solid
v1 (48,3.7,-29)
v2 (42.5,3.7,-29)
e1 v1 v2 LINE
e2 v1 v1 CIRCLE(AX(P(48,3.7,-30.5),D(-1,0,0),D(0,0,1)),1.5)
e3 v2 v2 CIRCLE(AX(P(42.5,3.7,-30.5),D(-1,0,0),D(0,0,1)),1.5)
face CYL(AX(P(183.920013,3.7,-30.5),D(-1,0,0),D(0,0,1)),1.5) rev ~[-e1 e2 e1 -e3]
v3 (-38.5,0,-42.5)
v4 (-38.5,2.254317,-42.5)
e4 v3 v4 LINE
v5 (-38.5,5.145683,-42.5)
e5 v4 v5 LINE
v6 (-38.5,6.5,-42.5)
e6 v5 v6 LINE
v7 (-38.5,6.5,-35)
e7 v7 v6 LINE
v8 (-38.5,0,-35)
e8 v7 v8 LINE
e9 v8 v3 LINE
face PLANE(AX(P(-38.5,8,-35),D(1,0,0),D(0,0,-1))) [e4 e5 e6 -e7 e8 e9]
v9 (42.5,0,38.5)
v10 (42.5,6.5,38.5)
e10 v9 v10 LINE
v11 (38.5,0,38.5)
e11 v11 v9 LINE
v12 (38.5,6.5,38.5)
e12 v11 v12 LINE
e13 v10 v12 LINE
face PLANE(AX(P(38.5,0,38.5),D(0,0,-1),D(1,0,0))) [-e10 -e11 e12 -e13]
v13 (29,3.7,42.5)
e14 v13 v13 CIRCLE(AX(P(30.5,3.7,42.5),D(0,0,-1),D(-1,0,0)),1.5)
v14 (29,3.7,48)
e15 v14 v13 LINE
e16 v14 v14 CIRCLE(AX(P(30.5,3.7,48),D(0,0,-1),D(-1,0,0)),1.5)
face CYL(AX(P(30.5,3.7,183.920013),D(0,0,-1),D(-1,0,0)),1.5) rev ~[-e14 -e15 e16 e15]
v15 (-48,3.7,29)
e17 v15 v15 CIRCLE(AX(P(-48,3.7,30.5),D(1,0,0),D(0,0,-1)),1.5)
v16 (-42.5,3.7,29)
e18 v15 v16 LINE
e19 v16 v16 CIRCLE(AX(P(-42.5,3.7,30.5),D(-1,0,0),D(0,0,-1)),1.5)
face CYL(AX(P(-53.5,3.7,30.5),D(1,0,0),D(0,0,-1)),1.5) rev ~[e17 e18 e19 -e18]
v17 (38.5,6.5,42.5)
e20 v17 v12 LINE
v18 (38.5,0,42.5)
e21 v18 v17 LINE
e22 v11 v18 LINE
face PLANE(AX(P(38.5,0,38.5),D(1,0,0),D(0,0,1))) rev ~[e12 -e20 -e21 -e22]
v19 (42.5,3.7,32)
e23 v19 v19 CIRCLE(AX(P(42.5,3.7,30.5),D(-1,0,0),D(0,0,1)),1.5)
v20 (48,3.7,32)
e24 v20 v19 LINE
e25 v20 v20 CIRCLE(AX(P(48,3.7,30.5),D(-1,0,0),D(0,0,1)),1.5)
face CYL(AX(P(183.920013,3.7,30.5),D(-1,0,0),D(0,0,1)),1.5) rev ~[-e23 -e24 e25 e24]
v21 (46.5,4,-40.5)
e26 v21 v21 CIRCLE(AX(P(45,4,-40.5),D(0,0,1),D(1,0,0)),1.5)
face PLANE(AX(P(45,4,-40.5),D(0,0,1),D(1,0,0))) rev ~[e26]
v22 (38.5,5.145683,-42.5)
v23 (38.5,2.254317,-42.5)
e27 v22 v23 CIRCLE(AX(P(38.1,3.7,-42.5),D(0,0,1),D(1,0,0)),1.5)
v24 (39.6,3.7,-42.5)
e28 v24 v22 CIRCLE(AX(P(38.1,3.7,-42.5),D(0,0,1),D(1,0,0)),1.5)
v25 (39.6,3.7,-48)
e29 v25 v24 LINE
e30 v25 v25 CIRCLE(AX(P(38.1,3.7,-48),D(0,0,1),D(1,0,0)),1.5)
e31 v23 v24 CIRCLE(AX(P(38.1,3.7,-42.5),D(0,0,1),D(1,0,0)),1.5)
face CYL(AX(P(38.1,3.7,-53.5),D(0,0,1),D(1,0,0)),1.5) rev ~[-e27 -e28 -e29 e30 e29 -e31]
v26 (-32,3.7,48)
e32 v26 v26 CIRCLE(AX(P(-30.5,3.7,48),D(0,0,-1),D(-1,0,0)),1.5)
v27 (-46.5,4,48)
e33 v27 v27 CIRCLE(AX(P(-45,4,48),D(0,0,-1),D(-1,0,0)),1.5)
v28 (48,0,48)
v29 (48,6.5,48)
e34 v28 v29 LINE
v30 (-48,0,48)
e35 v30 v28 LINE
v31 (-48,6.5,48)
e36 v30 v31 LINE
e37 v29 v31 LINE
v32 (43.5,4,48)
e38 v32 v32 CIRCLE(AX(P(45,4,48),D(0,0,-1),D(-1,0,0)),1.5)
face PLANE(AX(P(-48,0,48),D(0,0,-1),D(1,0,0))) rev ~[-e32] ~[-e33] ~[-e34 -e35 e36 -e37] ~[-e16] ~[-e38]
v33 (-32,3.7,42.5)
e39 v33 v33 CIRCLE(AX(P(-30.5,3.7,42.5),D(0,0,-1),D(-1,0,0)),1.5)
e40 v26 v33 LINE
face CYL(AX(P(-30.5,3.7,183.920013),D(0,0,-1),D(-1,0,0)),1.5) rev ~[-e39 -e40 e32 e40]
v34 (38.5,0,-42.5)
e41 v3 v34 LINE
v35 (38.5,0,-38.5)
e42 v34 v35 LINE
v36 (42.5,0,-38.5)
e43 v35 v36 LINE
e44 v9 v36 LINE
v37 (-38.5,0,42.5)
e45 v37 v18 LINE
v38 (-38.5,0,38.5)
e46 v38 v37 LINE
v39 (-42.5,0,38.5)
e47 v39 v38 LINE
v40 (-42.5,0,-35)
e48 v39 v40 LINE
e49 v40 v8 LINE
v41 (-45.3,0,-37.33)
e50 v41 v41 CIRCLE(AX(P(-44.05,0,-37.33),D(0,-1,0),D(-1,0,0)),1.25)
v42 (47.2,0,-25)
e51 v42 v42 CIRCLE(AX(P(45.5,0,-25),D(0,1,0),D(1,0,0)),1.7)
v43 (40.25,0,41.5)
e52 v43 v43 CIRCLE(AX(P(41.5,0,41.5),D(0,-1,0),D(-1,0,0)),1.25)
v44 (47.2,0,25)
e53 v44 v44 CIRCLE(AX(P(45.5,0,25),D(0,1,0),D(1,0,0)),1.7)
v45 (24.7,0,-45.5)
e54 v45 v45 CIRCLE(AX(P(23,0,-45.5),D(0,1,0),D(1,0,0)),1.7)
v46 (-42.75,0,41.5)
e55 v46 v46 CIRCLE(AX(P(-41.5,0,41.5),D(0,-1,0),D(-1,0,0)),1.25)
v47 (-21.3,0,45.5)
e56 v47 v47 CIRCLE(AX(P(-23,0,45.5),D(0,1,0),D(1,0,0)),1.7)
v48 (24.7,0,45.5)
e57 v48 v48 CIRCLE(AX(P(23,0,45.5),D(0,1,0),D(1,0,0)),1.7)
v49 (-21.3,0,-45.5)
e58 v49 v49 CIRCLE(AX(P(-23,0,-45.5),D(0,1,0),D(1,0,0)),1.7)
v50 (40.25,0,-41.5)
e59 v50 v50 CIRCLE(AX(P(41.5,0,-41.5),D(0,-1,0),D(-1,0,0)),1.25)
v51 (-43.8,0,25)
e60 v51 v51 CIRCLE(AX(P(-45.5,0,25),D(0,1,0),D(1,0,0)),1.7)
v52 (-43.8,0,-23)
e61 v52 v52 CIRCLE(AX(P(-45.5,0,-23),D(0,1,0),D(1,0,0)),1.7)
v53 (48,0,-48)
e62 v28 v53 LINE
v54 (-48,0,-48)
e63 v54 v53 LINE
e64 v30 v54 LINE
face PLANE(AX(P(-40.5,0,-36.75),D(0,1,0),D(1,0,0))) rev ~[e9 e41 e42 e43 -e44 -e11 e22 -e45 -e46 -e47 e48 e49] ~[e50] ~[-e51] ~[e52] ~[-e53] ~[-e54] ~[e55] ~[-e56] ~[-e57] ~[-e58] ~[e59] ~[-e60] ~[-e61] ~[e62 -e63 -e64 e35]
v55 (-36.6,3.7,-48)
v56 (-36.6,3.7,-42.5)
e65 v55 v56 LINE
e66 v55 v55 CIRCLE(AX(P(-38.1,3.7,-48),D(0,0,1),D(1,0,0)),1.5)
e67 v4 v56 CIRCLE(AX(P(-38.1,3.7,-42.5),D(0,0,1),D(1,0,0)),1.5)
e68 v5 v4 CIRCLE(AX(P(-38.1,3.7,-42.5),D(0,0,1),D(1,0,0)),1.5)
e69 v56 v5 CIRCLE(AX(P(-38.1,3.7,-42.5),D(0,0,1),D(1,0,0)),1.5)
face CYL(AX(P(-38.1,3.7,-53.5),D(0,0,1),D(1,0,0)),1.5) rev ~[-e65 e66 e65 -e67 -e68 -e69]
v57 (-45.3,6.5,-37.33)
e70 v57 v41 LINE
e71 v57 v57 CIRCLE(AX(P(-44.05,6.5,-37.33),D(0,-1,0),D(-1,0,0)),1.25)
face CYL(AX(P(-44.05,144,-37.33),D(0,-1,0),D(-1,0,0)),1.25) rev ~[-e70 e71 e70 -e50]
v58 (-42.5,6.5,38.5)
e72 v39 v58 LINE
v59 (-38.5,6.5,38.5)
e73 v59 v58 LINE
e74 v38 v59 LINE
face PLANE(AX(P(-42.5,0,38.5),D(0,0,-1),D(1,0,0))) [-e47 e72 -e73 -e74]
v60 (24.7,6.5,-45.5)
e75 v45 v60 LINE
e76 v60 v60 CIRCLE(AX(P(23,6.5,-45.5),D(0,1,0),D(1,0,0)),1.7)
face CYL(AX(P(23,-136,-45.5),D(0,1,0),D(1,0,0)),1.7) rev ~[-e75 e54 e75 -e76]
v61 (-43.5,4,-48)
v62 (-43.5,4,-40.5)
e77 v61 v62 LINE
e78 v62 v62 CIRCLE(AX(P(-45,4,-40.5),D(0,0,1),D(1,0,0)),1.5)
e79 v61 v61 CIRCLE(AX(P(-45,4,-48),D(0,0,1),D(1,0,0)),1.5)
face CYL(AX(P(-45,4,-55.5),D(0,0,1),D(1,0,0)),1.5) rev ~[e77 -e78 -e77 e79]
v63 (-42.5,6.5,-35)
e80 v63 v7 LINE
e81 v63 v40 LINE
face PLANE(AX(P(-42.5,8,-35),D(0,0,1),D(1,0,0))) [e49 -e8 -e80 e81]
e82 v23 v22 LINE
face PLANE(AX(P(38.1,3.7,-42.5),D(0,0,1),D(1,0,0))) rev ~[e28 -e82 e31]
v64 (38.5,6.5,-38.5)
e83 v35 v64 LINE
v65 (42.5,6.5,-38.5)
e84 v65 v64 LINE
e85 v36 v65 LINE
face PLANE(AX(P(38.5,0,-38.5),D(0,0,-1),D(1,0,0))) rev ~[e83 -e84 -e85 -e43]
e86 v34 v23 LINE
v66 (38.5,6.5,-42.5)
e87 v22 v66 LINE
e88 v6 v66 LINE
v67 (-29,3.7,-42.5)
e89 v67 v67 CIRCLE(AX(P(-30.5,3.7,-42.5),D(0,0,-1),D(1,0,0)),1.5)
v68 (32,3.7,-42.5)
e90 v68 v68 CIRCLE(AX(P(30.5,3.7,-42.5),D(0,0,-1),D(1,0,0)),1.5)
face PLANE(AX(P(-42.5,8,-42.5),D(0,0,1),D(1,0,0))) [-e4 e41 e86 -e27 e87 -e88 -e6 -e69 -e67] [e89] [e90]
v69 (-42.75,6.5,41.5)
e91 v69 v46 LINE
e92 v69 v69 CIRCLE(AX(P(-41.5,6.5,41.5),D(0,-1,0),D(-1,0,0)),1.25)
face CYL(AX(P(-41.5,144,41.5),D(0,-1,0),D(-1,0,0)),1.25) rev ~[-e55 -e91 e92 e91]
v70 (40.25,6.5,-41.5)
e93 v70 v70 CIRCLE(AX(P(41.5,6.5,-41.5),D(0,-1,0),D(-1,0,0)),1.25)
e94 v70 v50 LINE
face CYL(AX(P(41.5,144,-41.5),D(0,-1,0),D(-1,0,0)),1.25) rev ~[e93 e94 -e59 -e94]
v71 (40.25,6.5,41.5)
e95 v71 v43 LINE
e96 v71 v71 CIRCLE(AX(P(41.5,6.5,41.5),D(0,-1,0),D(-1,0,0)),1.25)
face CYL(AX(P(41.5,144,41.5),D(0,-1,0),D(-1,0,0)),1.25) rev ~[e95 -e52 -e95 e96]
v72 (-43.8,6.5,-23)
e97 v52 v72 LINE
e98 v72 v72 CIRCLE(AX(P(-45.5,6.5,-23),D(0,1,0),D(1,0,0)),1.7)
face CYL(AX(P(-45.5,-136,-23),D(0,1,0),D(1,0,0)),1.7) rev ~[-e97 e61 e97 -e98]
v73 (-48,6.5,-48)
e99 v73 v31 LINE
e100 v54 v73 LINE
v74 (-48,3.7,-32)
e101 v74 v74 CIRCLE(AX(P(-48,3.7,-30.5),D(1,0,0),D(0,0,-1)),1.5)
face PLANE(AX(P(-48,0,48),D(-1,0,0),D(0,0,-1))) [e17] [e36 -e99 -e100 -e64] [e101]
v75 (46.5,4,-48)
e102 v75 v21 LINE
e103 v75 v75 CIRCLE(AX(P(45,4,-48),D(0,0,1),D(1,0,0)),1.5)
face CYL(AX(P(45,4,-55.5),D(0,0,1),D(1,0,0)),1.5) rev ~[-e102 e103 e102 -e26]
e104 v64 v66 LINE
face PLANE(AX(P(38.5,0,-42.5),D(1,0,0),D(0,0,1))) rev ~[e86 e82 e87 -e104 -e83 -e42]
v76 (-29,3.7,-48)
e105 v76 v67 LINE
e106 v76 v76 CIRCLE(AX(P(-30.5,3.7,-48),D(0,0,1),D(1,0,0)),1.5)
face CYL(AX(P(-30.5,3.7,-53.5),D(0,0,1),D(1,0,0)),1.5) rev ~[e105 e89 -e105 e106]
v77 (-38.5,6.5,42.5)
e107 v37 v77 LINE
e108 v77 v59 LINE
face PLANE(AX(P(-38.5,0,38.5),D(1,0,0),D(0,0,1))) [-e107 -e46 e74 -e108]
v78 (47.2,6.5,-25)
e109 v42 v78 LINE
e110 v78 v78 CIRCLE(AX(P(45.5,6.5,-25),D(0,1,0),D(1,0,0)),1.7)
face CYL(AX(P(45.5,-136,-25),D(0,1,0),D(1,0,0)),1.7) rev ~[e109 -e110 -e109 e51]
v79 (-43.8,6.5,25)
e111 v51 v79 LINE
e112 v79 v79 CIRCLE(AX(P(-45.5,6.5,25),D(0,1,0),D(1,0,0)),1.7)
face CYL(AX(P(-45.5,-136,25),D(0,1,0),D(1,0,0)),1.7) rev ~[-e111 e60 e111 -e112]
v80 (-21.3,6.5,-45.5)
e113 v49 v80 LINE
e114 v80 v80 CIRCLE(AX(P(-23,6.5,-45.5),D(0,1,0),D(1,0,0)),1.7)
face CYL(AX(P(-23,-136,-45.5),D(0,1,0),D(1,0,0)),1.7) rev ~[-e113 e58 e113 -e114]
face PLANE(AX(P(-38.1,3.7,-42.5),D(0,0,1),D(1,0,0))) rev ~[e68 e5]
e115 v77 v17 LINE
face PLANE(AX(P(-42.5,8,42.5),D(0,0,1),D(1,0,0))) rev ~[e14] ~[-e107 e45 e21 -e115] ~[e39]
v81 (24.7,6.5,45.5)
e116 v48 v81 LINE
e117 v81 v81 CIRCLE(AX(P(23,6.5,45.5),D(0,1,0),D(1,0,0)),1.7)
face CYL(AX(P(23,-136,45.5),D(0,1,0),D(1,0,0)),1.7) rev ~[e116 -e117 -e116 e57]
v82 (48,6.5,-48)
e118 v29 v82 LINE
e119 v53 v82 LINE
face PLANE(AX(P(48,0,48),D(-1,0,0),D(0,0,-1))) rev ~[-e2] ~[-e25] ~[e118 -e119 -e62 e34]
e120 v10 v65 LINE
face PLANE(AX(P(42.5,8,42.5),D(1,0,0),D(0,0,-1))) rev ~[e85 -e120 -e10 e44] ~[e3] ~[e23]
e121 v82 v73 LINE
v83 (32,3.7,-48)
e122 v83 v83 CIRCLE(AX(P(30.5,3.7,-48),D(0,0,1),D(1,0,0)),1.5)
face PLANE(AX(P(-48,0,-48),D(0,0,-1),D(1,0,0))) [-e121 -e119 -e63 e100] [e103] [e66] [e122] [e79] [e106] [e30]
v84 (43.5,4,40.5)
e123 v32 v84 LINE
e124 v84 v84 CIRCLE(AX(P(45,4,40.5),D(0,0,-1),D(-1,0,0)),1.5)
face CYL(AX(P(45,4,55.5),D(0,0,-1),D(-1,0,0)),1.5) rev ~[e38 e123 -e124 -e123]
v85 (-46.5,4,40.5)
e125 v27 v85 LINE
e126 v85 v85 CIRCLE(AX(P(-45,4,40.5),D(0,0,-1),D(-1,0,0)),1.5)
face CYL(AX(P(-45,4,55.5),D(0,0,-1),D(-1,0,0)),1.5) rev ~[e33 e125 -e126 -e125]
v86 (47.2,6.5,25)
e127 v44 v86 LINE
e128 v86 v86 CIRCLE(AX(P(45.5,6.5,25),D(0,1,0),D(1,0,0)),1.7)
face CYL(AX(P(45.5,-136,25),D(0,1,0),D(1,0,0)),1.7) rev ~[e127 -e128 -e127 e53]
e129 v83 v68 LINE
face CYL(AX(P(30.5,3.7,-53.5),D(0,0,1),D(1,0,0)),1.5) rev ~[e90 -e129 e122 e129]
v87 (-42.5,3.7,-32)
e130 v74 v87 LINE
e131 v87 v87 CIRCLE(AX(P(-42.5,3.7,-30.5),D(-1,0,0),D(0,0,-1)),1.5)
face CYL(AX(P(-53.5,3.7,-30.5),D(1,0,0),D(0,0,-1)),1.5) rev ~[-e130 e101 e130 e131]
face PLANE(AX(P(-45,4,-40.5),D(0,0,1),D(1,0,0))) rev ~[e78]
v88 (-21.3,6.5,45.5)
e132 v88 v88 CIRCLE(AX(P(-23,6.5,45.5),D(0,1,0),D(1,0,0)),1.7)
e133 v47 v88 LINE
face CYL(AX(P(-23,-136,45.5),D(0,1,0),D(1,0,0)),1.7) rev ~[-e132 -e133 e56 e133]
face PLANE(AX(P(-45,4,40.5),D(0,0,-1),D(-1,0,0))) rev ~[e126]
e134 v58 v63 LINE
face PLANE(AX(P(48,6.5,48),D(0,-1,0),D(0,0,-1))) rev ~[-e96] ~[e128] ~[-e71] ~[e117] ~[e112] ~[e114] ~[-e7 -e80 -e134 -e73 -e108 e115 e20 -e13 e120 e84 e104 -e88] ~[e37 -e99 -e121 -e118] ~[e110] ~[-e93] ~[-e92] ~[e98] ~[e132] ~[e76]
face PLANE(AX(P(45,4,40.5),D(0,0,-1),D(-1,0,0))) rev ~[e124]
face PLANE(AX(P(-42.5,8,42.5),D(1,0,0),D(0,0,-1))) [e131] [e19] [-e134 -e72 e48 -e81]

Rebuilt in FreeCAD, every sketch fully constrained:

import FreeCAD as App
import Part
import Sketcher
from FreeCAD import Vector
Q = App.Units.Quantity

doc = App.newDocument("Part")
body = doc.addObject("PartDesign::Body", "Body")

# Sketch on XZ plane
sketch1 = doc.addObject("Sketcher::SketchObject", "Sketch")
body.addObject(sketch1)
sketch1.AttachmentSupport = (doc.XZ_Plane, [""])
sketch1.MapMode = "FlatFace"
sketch1.addGeometry([
    Part.LineSegment(Vector(-48, -48, 0), Vector(-48, 48, 0)),  # 0
    Part.LineSegment(Vector(-48, 48, 0), Vector(48, 48, 0)),  # 1
    Part.LineSegment(Vector(48, 48, 0), Vector(48, -48, 0)),  # 2
    Part.LineSegment(Vector(48, -48, 0), Vector(-48, -48, 0)),  # 3
    Part.LineSegment(Vector(40, 40, 0), Vector(-40, 40, 0)),  # 4
    Part.LineSegment(Vector(-40, 40, 0), Vector(-40, -40, 0)),  # 5
    Part.LineSegment(Vector(-40, -40, 0), Vector(40, -40, 0)),  # 6
    Part.LineSegment(Vector(40, -40, 0), Vector(40, 40, 0)),  # 7
], False)
sketch1.addConstraint([
    Sketcher.Constraint("Coincident", 0, 2, 1, 1),
    Sketcher.Constraint("Coincident", 1, 2, 2, 1),
    Sketcher.Constraint("Coincident", 2, 2, 3, 1),
    Sketcher.Constraint("Coincident", 3, 2, 0, 1),
    Sketcher.Constraint("Coincident", 4, 2, 5, 1),
    Sketcher.Constraint("Coincident", 5, 2, 6, 1),
    Sketcher.Constraint("Coincident", 6, 2, 7, 1),
    Sketcher.Constraint("Coincident", 7, 2, 4, 1),
    Sketcher.Constraint("Vertical", 0),
    Sketcher.Constraint("Horizontal", 1),
    Sketcher.Constraint("Vertical", 2),
    Sketcher.Constraint("Horizontal", 3),
    Sketcher.Constraint("Horizontal", 4),
    Sketcher.Constraint("Vertical", 5),
    Sketcher.Constraint("Horizontal", 6),
    Sketcher.Constraint("Vertical", 7),
    Sketcher.Constraint("Symmetric", 0, 2, 2, 2, -1, 1),
    Sketcher.Constraint("Symmetric", 4, 2, 6, 2, -1, 1),
    Sketcher.Constraint("Equal", 3, 0),
    Sketcher.Constraint("Equal", 6, 5),
    Sketcher.Constraint("DistanceX", 1, 1, 1, 2, Q("96 mm")),
    Sketcher.Constraint("DistanceX", 4, 2, 4, 1, Q("80 mm")),
])
pad1 = doc.addObject("PartDesign::Pad", "Pad")
body.addObject(pad1)
pad1.Profile = sketch1
pad1.Length = 8
pad1.Reversed = True

# Sketch on XY plane
sketch2 = doc.addObject("Sketcher::SketchObject", "Sketch001")
body.addObject(sketch2)
sketch2.AttachmentSupport = (doc.XY_Plane, [""])
sketch2.MapMode = "FlatFace"
sketch2.AttachmentOffset = App.Placement(Vector(0, 0, 48), App.Rotation())
sketch2.addGeometry([
    Part.Circle(Vector(45, 4, 0), Vector(0, 0, 1), 1.5),
    Part.Circle(Vector(-45, 4, 0), Vector(0, 0, 1), 1.5),
], False)
sketch2.addConstraint([
    Sketcher.Constraint("Equal", 0, 1),
    Sketcher.Constraint("Symmetric", 0, 3, 1, 3, -2),
    Sketcher.Constraint("Diameter", 0, Q("3 mm")),
    Sketcher.Constraint("DistanceX", -1, 1, 0, 3, Q("45 mm")),
    Sketcher.Constraint("DistanceY", -1, 1, 0, 3, Q("4 mm")),
])
doc.recompute()
hole = doc.addObject("PartDesign::Hole", "Hole")
body.addObject(hole)
hole.Profile = sketch2
hole.ThreadType = "None"
hole.Diameter = 3
hole.DepthType = "Dimension"
hole.Depth = 7.5
hole.DrillPoint = "Flat"

# Sketch on XY plane
sketch3 = doc.addObject("Sketcher::SketchObject", "Sketch002")
body.addObject(sketch3)
sketch3.AttachmentSupport = (doc.XY_Plane, [""])
sketch3.MapMode = "FlatFace"
sketch3.AttachmentOffset = App.Placement(Vector(0, 0, -48), App.Rotation())
sketch3.addGeometry([
    Part.Circle(Vector(45, 4, 0), Vector(0, 0, 1), 1.5),
    Part.Circle(Vector(-45, 4, 0), Vector(0, 0, 1), 1.5),
], False)
sketch3.addConstraint([
    Sketcher.Constraint("Equal", 0, 1),
    Sketcher.Constraint("Symmetric", 0, 3, 1, 3, -2),
    Sketcher.Constraint("Diameter", 0, Q("3 mm")),
    Sketcher.Constraint("DistanceX", -1, 1, 0, 3, Q("45 mm")),
    Sketcher.Constraint("DistanceY", -1, 1, 0, 3, Q("4 mm")),
])
doc.recompute()
hole2 = doc.addObject("PartDesign::Hole", "Hole001")
body.addObject(hole2)
hole2.Profile = sketch3
hole2.ThreadType = "None"
hole2.Diameter = 3
hole2.DepthType = "Dimension"
hole2.Depth = 7.5
hole2.DrillPoint = "Flat"
hole2.Reversed = True

# Sketch on XZ plane
sketch4 = doc.addObject("Sketcher::SketchObject", "Sketch003")
body.addObject(sketch4)
sketch4.AttachmentSupport = (doc.XZ_Plane, [""])
sketch4.MapMode = "FlatFace"
sketch4.AttachmentOffset = App.Placement(Vector(0, 0, -8), App.Rotation())
sketch4.addGeometry([
    Part.LineSegment(Vector(-41, -41, 0), Vector(-41, 41, 0)),
    Part.LineSegment(Vector(-41, 41, 0), Vector(41, 41, 0)),
    Part.LineSegment(Vector(41, 41, 0), Vector(41, -41, 0)),
    Part.LineSegment(Vector(41, -41, 0), Vector(-41, -41, 0)),
], False)
sketch4.addConstraint([
    Sketcher.Constraint("Coincident", 0, 2, 1, 1),
    Sketcher.Constraint("Coincident", 1, 2, 2, 1),
    Sketcher.Constraint("Coincident", 2, 2, 3, 1),
    Sketcher.Constraint("Coincident", 3, 2, 0, 1),
    Sketcher.Constraint("Vertical", 0),
    Sketcher.Constraint("Horizontal", 1),
    Sketcher.Constraint("Vertical", 2),
    Sketcher.Constraint("Horizontal", 3),
    Sketcher.Constraint("Symmetric", 0, 2, 2, 2, -1, 1),
    Sketcher.Constraint("Equal", 3, 0),
    Sketcher.Constraint("DistanceX", 1, 1, 1, 2, Q("82 mm")),
])
pocket1 = doc.addObject("PartDesign::Pocket", "Pocket")
body.addObject(pocket1)
pocket1.Profile = sketch4
pocket1.Length = 10
pocket1.Reversed = True

# Sketch on XZ plane
sketch5 = doc.addObject("Sketcher::SketchObject", "Sketch004")
body.addObject(sketch5)
sketch5.AttachmentSupport = (doc.XZ_Plane, [""])
sketch5.MapMode = "FlatFace"
sketch5.addGeometry([
    Part.Circle(Vector(23, -45.5, 0), Vector(0, 0, 1), 1.7),  # 0
    Part.Circle(Vector(-23, -45.5, 0), Vector(0, 0, 1), 1.7),  # 1
    Part.Circle(Vector(-45.5, -23, 0), Vector(0, 0, 1), 1.7),  # 2
    Part.Circle(Vector(-45.5, 25, 0), Vector(0, 0, 1), 1.7),  # 3
    Part.Circle(Vector(-23, 45.5, 0), Vector(0, 0, 1), 1.7),  # 4
    Part.Circle(Vector(23, 45.5, 0), Vector(0, 0, 1), 1.7),  # 5
    Part.Circle(Vector(45.5, 25, 0), Vector(0, 0, 1), 1.7),  # 6
    Part.Circle(Vector(45.5, -25, 0), Vector(0, 0, 1), 1.7),  # 7
], False)
sketch5.addConstraint([
    Sketcher.Constraint("Equal", 0, 1),
    Sketcher.Constraint("Equal", 1, 2),
    Sketcher.Constraint("Equal", 2, 3),
    Sketcher.Constraint("Equal", 3, 4),
    Sketcher.Constraint("Equal", 4, 5),
    Sketcher.Constraint("Equal", 5, 6),
    Sketcher.Constraint("Equal", 6, 7),
    Sketcher.Constraint("Symmetric", 0, 3, 4, 3, -1, 1),
    Sketcher.Constraint("Symmetric", 1, 3, 5, 3, -1, 1),
    Sketcher.Constraint("Symmetric", 3, 3, 7, 3, -1, 1),
    Sketcher.Constraint("Symmetric", 0, 3, 1, 3, -2),
    Sketcher.Constraint("Symmetric", 3, 3, 6, 3, -2),
    Sketcher.Constraint("Vertical", 2, 3, 3, 3),
    Sketcher.Constraint("Diameter", 0, Q("3.4 mm")),
    Sketcher.Constraint("DistanceX", -1, 1, 0, 3, Q("23 mm")),
    Sketcher.Constraint("DistanceY", 2, 3, -1, 1, Q("23 mm")),
    Sketcher.Constraint("DistanceY", -1, 1, 3, 3, Q("25 mm")),
    Sketcher.Constraint("DistanceY", 1, 3, 4, 3, Q("91 mm")),
    Sketcher.Constraint("DistanceX", 3, 3, 6, 3, Q("91 mm")),
])
doc.recompute()
hole3 = doc.addObject("PartDesign::Hole", "Hole002")
body.addObject(hole3)
hole3.Profile = sketch5
hole3.ThreadType = "None"
hole3.Diameter = 3.4
hole3.DepthType = "ThroughAll"

# Sketch on XZ plane
sketch6 = doc.addObject("Sketcher::SketchObject", "Sketch005")
body.addObject(sketch6)
sketch6.AttachmentSupport = (doc.XZ_Plane, [""])
sketch6.MapMode = "FlatFace"
sketch6.AttachmentOffset = App.Placement(Vector(0, 0, -8), App.Rotation())
sketch6.addGeometry([
    Part.LineSegment(Vector(-42, -42, 0), Vector(-42, 42, 0)),
    Part.LineSegment(Vector(-42, 42, 0), Vector(42, 42, 0)),
    Part.LineSegment(Vector(42, 42, 0), Vector(42, -42, 0)),
    Part.LineSegment(Vector(42, -42, 0), Vector(-42, -42, 0)),
], False)
sketch6.addConstraint([
    Sketcher.Constraint("Coincident", 0, 2, 1, 1),
    Sketcher.Constraint("Coincident", 1, 2, 2, 1),
    Sketcher.Constraint("Coincident", 2, 2, 3, 1),
    Sketcher.Constraint("Coincident", 3, 2, 0, 1),
    Sketcher.Constraint("Vertical", 0),
    Sketcher.Constraint("Horizontal", 1),
    Sketcher.Constraint("Vertical", 2),
    Sketcher.Constraint("Horizontal", 3),
    Sketcher.Constraint("Symmetric", 0, 2, 2, 2, -1, 1),
    Sketcher.Constraint("Equal", 3, 0),
    Sketcher.Constraint("DistanceX", 1, 1, 1, 2, Q("85 mm")),
])
pocket2 = doc.addObject("PartDesign::Pocket", "Pocket001")
body.addObject(pocket2)
pocket2.Profile = sketch6
pocket2.Length = 10
pocket2.Reversed = True

# Sketch on XZ plane
sketch7 = doc.addObject("Sketcher::SketchObject", "Sketch006")
body.addObject(sketch7)
sketch7.AttachmentSupport = (doc.XZ_Plane, [""])
sketch7.MapMode = "FlatFace"
sketch7.addGeometry([
    Part.LineSegment(Vector(38.5, -38.5, 0), Vector(38.5, -42.5, 0)),  # 0
    Part.LineSegment(Vector(38.5, -42.5, 0), Vector(42.5, -42.5, 0)),  # 1
    Part.LineSegment(Vector(42.5, -42.5, 0), Vector(42.5, -38.5, 0)),  # 2
    Part.LineSegment(Vector(42.5, -38.5, 0), Vector(38.5, -38.5, 0)),  # 3
    Part.LineSegment(Vector(-42.5, -38.5, 0), Vector(-42.5, -42.5, 0)),  # 4
    Part.LineSegment(Vector(-42.5, -42.5, 0), Vector(-38.5, -42.5, 0)),  # 5
    Part.LineSegment(Vector(-38.5, -42.5, 0), Vector(-38.5, -38.5, 0)),  # 6
    Part.LineSegment(Vector(-38.5, -38.5, 0), Vector(-42.5, -38.5, 0)),  # 7
    Part.LineSegment(Vector(-42.5, 42.5, 0), Vector(-42.5, 38.5, 0)),  # 8
    Part.LineSegment(Vector(-42.5, 38.5, 0), Vector(-38.5, 38.5, 0)),  # 9
    Part.LineSegment(Vector(-38.5, 38.5, 0), Vector(-38.5, 42.5, 0)),  # 10
    Part.LineSegment(Vector(-38.5, 42.5, 0), Vector(-42.5, 42.5, 0)),  # 11
    Part.LineSegment(Vector(38.5, 42.5, 0), Vector(38.5, 38.5, 0)),  # 12
    Part.LineSegment(Vector(38.5, 38.5, 0), Vector(42.5, 38.5, 0)),  # 13
    Part.LineSegment(Vector(42.5, 38.5, 0), Vector(42.5, 42.5, 0)),  # 14
    Part.LineSegment(Vector(42.5, 42.5, 0), Vector(38.5, 42.5, 0)),  # 15
], False)
sketch7.addConstraint([
    Sketcher.Constraint("Coincident", 0, 2, 1, 1),
    Sketcher.Constraint("Coincident", 1, 2, 2, 1),
    Sketcher.Constraint("Coincident", 2, 2, 3, 1),
    Sketcher.Constraint("Coincident", 3, 2, 0, 1),
    Sketcher.Constraint("Coincident", 4, 2, 5, 1),
    Sketcher.Constraint("Coincident", 5, 2, 6, 1),
    Sketcher.Constraint("Coincident", 6, 2, 7, 1),
    Sketcher.Constraint("Coincident", 7, 2, 4, 1),
    Sketcher.Constraint("Coincident", 8, 2, 9, 1),
    Sketcher.Constraint("Coincident", 9, 2, 10, 1),
    Sketcher.Constraint("Coincident", 10, 2, 11, 1),
    Sketcher.Constraint("Coincident", 11, 2, 8, 1),
    Sketcher.Constraint("Coincident", 12, 2, 13, 1),
    Sketcher.Constraint("Coincident", 13, 2, 14, 1),
    Sketcher.Constraint("Coincident", 14, 2, 15, 1),
    Sketcher.Constraint("Coincident", 15, 2, 12, 1),
    Sketcher.Constraint("Vertical", 0),
    Sketcher.Constraint("Horizontal", 1),
    Sketcher.Constraint("Vertical", 2),
    Sketcher.Constraint("Horizontal", 3),
    Sketcher.Constraint("Vertical", 4),
    Sketcher.Constraint("Horizontal", 5),
    Sketcher.Constraint("Vertical", 6),
    Sketcher.Constraint("Horizontal", 7),
    Sketcher.Constraint("Vertical", 8),
    Sketcher.Constraint("Horizontal", 9),
    Sketcher.Constraint("Vertical", 10),
    Sketcher.Constraint("Horizontal", 11),
    Sketcher.Constraint("Vertical", 12),
    Sketcher.Constraint("Horizontal", 13),
    Sketcher.Constraint("Vertical", 14),
    Sketcher.Constraint("Horizontal", 15),
    Sketcher.Constraint("Symmetric", 2, 2, 8, 2, -1, 1),
    Sketcher.Constraint("Symmetric", 0, 2, 10, 2, -1, 1),
    Sketcher.Constraint("Symmetric", 6, 2, 12, 2, -1, 1),
    Sketcher.Constraint("Symmetric", 4, 2, 14, 2, -1, 1),
    Sketcher.Constraint("Symmetric", 1, 2, 4, 2, -2),
    Sketcher.Constraint("Symmetric", 3, 2, 6, 2, -2),
    Sketcher.Constraint("Equal", 15, 0),
    Sketcher.Constraint("DistanceX", 1, 1, 1, 2, Q("4 mm")),
    Sketcher.Constraint("DistanceX", 4, 2, 0, 2, Q("81 mm")),
    Sketcher.Constraint("DistanceY", 7, 2, 8, 2, Q("77 mm")),
])
pad2 = doc.addObject("PartDesign::Pad", "Pad001")
body.addObject(pad2)
pad2.Profile = sketch7
pad2.Length = 8
pad2.Reversed = True

# Sketch on XZ plane
sketch8 = doc.addObject("Sketcher::SketchObject", "Sketch007")
body.addObject(sketch8)
sketch8.AttachmentSupport = (doc.XZ_Plane, [""])
sketch8.MapMode = "FlatFace"
sketch8.AttachmentOffset = App.Placement(Vector(0, 0, -8), App.Rotation())
sketch8.addGeometry([
    Part.LineSegment(Vector(-42.5, -38.5, 0), Vector(-42.5, -35, 0)),
    Part.LineSegment(Vector(-42.5, -35, 0), Vector(-38.5, -35, 0)),
    Part.LineSegment(Vector(-38.5, -35, 0), Vector(-38.5, -38.5, 0)),
    Part.LineSegment(Vector(-38.5, -38.5, 0), Vector(-42.5, -38.5, 0)),
], False)
sketch8.addConstraint([
    Sketcher.Constraint("Coincident", 0, 2, 1, 1),
    Sketcher.Constraint("Coincident", 1, 2, 2, 1),
    Sketcher.Constraint("Coincident", 2, 2, 3, 1),
    Sketcher.Constraint("Coincident", 3, 2, 0, 1),
    Sketcher.Constraint("Vertical", 0),
    Sketcher.Constraint("Horizontal", 1),
    Sketcher.Constraint("Vertical", 2),
    Sketcher.Constraint("Horizontal", 3),
    Sketcher.Constraint("DistanceX", 1, 1, 1, 2, Q("4 mm")),
    Sketcher.Constraint("DistanceY", 0, 1, 0, 2, Q("3.5 mm")),
    Sketcher.Constraint("DistanceY", 0, 2, -1, 1, Q("35 mm")),
    Sketcher.Constraint("DistanceX", 0, 2, -1, 1, Q("42.5 mm")),
])
pad3 = doc.addObject("PartDesign::Pad", "Pad002")
body.addObject(pad3)
pad3.Profile = sketch8
pad3.Length = 8

# Sketch on XZ plane
sketch9 = doc.addObject("Sketcher::SketchObject", "Sketch008")
body.addObject(sketch9)
sketch9.AttachmentSupport = (doc.XZ_Plane, [""])
sketch9.MapMode = "FlatFace"
sketch9.AttachmentOffset = App.Placement(Vector(0, 0, -8), App.Rotation())
sketch9.addGeometry([
    Part.Circle(Vector(41.5, -41.5, 0), Vector(0, 0, 1), 1.2),
    Part.Circle(Vector(41.5, 41.5, 0), Vector(0, 0, 1), 1.2),
    Part.Circle(Vector(-41.5, 41.5, 0), Vector(0, 0, 1), 1.2),
    Part.Circle(Vector(-44, -37.3, 0), Vector(0, 0, 1), 1.2),
], False)
sketch9.addConstraint([
    Sketcher.Constraint("Equal", 0, 1),
    Sketcher.Constraint("Equal", 1, 2),
    Sketcher.Constraint("Equal", 2, 3),
    Sketcher.Constraint("Symmetric", 0, 3, 2, 3, -1, 1),
    Sketcher.Constraint("Symmetric", 1, 3, 2, 3, -2),
    Sketcher.Constraint("Diameter", 0, Q("2.5 mm")),
    Sketcher.Constraint("DistanceY", 0, 3, 1, 3, Q("83 mm")),
    Sketcher.Constraint("DistanceX", 2, 3, 1, 3, Q("83 mm")),
    Sketcher.Constraint("DistanceX", 3, 3, -1, 1, Q("44.05 mm")),
    Sketcher.Constraint("DistanceY", 3, 3, -1, 1, Q("37.33 mm")),
])
doc.recompute()
hole4 = doc.addObject("PartDesign::Hole", "Hole003")
body.addObject(hole4)
hole4.Profile = sketch9
hole4.ThreadType = "None"
hole4.Diameter = 2.5
hole4.DepthType = "ThroughAll"
hole4.Reversed = True

# Sketch on YZ plane
sketch10 = doc.addObject("Sketcher::SketchObject", "Sketch009")
body.addObject(sketch10)
sketch10.AttachmentSupport = (doc.YZ_Plane, [""])
sketch10.MapMode = "FlatFace"
sketch10.AttachmentOffset = App.Placement(Vector(0, 0, 48), App.Rotation())
sketch10.addGeometry([
    Part.LineSegment(Vector(8, 48, 0), Vector(6.5, 48, 0)),
    Part.LineSegment(Vector(6.5, 48, 0), Vector(6.5, -48, 0)),
    Part.LineSegment(Vector(6.5, -48, 0), Vector(8, -48, 0)),
    Part.LineSegment(Vector(8, -48, 0), Vector(8, 48, 0)),
], False)
sketch10.addConstraint([
    Sketcher.Constraint("Coincident", 0, 2, 1, 1),
    Sketcher.Constraint("Coincident", 1, 2, 2, 1),
    Sketcher.Constraint("Coincident", 2, 2, 3, 1),
    Sketcher.Constraint("Coincident", 3, 2, 0, 1),
    Sketcher.Constraint("Horizontal", 0),
    Sketcher.Constraint("Vertical", 1),
    Sketcher.Constraint("Horizontal", 2),
    Sketcher.Constraint("Vertical", 3),
    Sketcher.Constraint("DistanceY", 1, 2, 1, 1, Q("96 mm")),
    Sketcher.Constraint("DistanceX", 0, 2, 0, 1, Q("1.5 mm")),
    Sketcher.Constraint("DistanceY", -1, 1, 0, 2, Q("48 mm")),
    Sketcher.Constraint("DistanceX", -1, 1, 2, 2, Q("8 mm")),
])
pocket3 = doc.addObject("PartDesign::Pocket", "Pocket002")
body.addObject(pocket3)
pocket3.Profile = sketch10
pocket3.Length = 146

# Sketch on YZ plane
sketch11 = doc.addObject("Sketcher::SketchObject", "Sketch010")
body.addObject(sketch11)
sketch11.AttachmentSupport = (doc.YZ_Plane, [""])
sketch11.MapMode = "FlatFace"
sketch11.AttachmentOffset = App.Placement(Vector(0, 0, -48), App.Rotation())
sketch11.addGeometry([
    Part.Circle(Vector(3.7, 30.5, 0), Vector(0, 0, 1), 1.5),
    Part.Circle(Vector(3.7, -30.5, 0), Vector(0, 0, 1), 1.5),
], False)
sketch11.addConstraint([
    Sketcher.Constraint("Equal", 0, 1),
    Sketcher.Constraint("Symmetric", 0, 3, 1, 3, -1),
    Sketcher.Constraint("Diameter", 0, Q("3 mm")),
    Sketcher.Constraint("DistanceY", 1, 3, 0, 3, Q("61 mm")),
    Sketcher.Constraint("DistanceX", -1, 1, 0, 3, Q("3.7 mm")),
])
doc.recompute()
hole5 = doc.addObject("PartDesign::Hole", "Hole004")
body.addObject(hole5)
hole5.Profile = sketch11
hole5.ThreadType = "None"
hole5.Diameter = 3
hole5.DepthType = "Dimension"
hole5.Depth = 5.5
hole5.DrillPoint = "Flat"
hole5.Reversed = True

# Sketch on XY plane
sketch12 = doc.addObject("Sketcher::SketchObject", "Sketch011")
body.addObject(sketch12)
sketch12.AttachmentSupport = (doc.XY_Plane, [""])
sketch12.MapMode = "FlatFace"
sketch12.AttachmentOffset = App.Placement(Vector(0, 0, -48), App.Rotation())
sketch12.addGeometry([
    Part.Circle(Vector(-30.5, 3.7, 0), Vector(0, 0, 1), 1.5),
    Part.Circle(Vector(30.5, 3.7, 0), Vector(0, 0, 1), 1.5),
], False)
sketch12.addConstraint([
    Sketcher.Constraint("Equal", 0, 1),
    Sketcher.Constraint("Symmetric", 0, 3, 1, 3, -2),
    Sketcher.Constraint("Diameter", 0, Q("3 mm")),
    Sketcher.Constraint("DistanceX", 0, 3, 1, 3, Q("61 mm")),
    Sketcher.Constraint("DistanceY", -1, 1, 0, 3, Q("3.7 mm")),
])
doc.recompute()
hole6 = doc.addObject("PartDesign::Hole", "Hole005")
body.addObject(hole6)
hole6.Profile = sketch12
hole6.ThreadType = "None"
hole6.Diameter = 3
hole6.DepthType = "Dimension"
hole6.Depth = 5.5
hole6.DrillPoint = "Flat"
hole6.Reversed = True

# Sketch on YZ plane
sketch13 = doc.addObject("Sketcher::SketchObject", "Sketch012")
body.addObject(sketch13)
sketch13.AttachmentSupport = (doc.YZ_Plane, [""])
sketch13.MapMode = "FlatFace"
sketch13.AttachmentOffset = App.Placement(Vector(0, 0, 48), App.Rotation())
sketch13.addGeometry([
    Part.Circle(Vector(3.7, -30.5, 0), Vector(0, 0, 1), 1.5),
    Part.Circle(Vector(3.7, 30.5, 0), Vector(0, 0, 1), 1.5),
], False)
sketch13.addConstraint([
    Sketcher.Constraint("Equal", 0, 1),
    Sketcher.Constraint("Symmetric", 0, 3, 1, 3, -1),
    Sketcher.Constraint("Diameter", 0, Q("3 mm")),
    Sketcher.Constraint("DistanceY", 0, 3, 1, 3, Q("61 mm")),
    Sketcher.Constraint("DistanceX", -1, 1, 0, 3, Q("3.7 mm")),
])
doc.recompute()
hole7 = doc.addObject("PartDesign::Hole", "Hole006")
body.addObject(hole7)
hole7.Profile = sketch13
hole7.ThreadType = "None"
hole7.Diameter = 3
hole7.DepthType = "ThroughAll"

# Sketch on XY plane
sketch14 = doc.addObject("Sketcher::SketchObject", "Sketch013")
body.addObject(sketch14)
sketch14.AttachmentSupport = (doc.XY_Plane, [""])
sketch14.MapMode = "FlatFace"
sketch14.AttachmentOffset = App.Placement(Vector(0, 0, 48), App.Rotation())
sketch14.addGeometry([
    Part.Circle(Vector(30.5, 3.7, 0), Vector(0, 0, 1), 1.5),
    Part.Circle(Vector(-30.5, 3.7, 0), Vector(0, 0, 1), 1.5),
], False)
sketch14.addConstraint([
    Sketcher.Constraint("Equal", 0, 1),
    Sketcher.Constraint("Symmetric", 0, 3, 1, 3, -2),
    Sketcher.Constraint("Diameter", 0, Q("3 mm")),
    Sketcher.Constraint("DistanceX", 1, 3, 0, 3, Q("61 mm")),
    Sketcher.Constraint("DistanceY", -1, 1, 0, 3, Q("3.7 mm")),
])
doc.recompute()
hole8 = doc.addObject("PartDesign::Hole", "Hole007")
body.addObject(hole8)
hole8.Profile = sketch14
hole8.ThreadType = "None"
hole8.Diameter = 3
hole8.DepthType = "ThroughAll"

# Sketch on XY plane
sketch15 = doc.addObject("Sketcher::SketchObject", "Sketch014")
body.addObject(sketch15)
sketch15.AttachmentSupport = (doc.XY_Plane, [""])
sketch15.MapMode = "FlatFace"
sketch15.AttachmentOffset = App.Placement(Vector(0, 0, -48), App.Rotation())
sketch15.addGeometry([
    Part.Circle(Vector(-38.1, 3.7, 0), Vector(0, 0, 1), 1.5),
    Part.Circle(Vector(38.1, 3.7, 0), Vector(0, 0, 1), 1.5),
], False)
sketch15.addConstraint([
    Sketcher.Constraint("Equal", 0, 1),
    Sketcher.Constraint("Symmetric", 0, 3, 1, 3, -2),
    Sketcher.Constraint("Diameter", 0, Q("3 mm")),
    Sketcher.Constraint("DistanceX", 0, 3, -1, 1, Q("38.1 mm")),
    Sketcher.Constraint("DistanceY", -1, 1, 0, 3, Q("3.7 mm")),
])
doc.recompute()
hole9 = doc.addObject("PartDesign::Hole", "Hole008")
body.addObject(hole9)
hole9.Profile = sketch15
hole9.ThreadType = "None"
hole9.Diameter = 3
hole9.DepthType = "Dimension"
hole9.Depth = 5.5
hole9.DrillPoint = "Flat"
hole9.Reversed = True

doc.recompute()
